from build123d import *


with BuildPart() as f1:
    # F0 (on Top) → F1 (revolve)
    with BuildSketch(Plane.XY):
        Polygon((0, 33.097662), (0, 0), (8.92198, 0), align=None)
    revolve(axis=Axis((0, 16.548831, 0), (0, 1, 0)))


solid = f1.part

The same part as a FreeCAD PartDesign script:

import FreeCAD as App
import Part
import Sketcher


def add_polygon(sketch, points):
    """Adds a closed chain of lines whose ends are joined by coincident constraints."""
    first, n = sketch.GeometryCount, len(points)
    for a, b in zip(points, points[1:] + points[:1]):
        sketch.addGeometry(Part.LineSegment(App.Vector(*a, 0), App.Vector(*b, 0)), False)
    for i in range(n):
        sketch.addConstraint(Sketcher.Constraint("Coincident", first + i, 2, first + (i + 1) % n, 1))

doc = App.newDocument("Part")
body = doc.addObject("PartDesign::Body", "Body")

# Sketch on XY plane
sketch1 = body.newObject("Sketcher::SketchObject", "Sketch")
sketch1.AttachmentSupport = (doc.getObject("XY_Plane"), [""])
sketch1.MapMode = "FlatFace"
add_polygon(sketch1, [(0, 33.097662), (0, 0), (8.92198, 0)])  # lines 0-2
sketch1.addConstraint(Sketcher.Constraint("Vertical", 0))
sketch1.addConstraint(Sketcher.Constraint("Horizontal", 1))
sketch1.addConstraint(Sketcher.Constraint("Coincident", 0, 2, -1, 1))
sketch1.addConstraint(Sketcher.Constraint("DistanceX", 1, 1, 1, 2, 8.92198))
sketch1.addConstraint(Sketcher.Constraint("DistanceY", 0, 2, 0, 1, 33.097662))
revolution = body.newObject("PartDesign::Revolution", "Revolution")
revolution.Profile = sketch1
revolution.ReferenceAxis = (sketch1, ["V_Axis"])
revolution.Angle = 360

doc.recompute()
